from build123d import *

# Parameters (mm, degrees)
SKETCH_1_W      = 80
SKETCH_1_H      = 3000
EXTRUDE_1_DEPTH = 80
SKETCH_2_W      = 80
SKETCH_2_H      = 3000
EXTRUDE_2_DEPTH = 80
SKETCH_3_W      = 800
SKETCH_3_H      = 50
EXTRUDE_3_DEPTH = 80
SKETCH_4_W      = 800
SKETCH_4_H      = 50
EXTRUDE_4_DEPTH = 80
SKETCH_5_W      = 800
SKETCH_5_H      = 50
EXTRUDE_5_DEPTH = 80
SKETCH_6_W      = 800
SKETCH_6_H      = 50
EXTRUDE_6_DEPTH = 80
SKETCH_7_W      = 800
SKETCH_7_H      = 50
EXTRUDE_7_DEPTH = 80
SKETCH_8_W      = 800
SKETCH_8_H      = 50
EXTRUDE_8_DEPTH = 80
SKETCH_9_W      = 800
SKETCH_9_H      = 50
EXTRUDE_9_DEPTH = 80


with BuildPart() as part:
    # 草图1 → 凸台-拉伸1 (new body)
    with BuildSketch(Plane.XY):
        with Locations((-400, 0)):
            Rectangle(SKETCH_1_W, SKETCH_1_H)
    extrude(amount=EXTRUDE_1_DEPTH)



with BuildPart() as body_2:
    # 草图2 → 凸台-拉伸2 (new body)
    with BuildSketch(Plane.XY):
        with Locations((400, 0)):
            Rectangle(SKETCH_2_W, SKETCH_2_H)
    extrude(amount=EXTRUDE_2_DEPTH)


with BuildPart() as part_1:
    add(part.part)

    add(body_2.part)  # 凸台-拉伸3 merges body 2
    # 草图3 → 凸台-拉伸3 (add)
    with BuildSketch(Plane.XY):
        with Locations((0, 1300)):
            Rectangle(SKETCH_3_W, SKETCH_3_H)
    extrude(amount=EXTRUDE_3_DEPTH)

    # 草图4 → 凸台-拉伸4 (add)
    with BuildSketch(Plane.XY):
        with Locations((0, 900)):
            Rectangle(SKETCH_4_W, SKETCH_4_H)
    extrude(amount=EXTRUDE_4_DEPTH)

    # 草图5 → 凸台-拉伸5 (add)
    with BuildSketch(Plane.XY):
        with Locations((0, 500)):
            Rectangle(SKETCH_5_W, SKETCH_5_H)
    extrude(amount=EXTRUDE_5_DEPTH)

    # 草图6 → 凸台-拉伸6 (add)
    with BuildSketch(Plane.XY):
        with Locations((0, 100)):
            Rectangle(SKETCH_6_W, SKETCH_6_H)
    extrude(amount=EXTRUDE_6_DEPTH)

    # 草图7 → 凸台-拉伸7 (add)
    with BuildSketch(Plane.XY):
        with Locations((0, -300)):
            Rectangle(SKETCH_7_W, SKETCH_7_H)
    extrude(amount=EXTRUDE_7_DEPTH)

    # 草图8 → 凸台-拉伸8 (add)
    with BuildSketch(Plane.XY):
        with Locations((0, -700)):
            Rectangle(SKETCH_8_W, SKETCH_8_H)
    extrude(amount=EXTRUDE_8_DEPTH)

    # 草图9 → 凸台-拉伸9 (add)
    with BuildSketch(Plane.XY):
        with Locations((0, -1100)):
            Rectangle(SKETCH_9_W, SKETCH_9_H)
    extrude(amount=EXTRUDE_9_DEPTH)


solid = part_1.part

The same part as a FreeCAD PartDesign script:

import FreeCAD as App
import Part
import Sketcher


def add_polygon(sketch, points):
    """Adds a closed chain of lines whose ends are joined by coincident constraints."""
    first, n = sketch.GeometryCount, len(points)
    for a, b in zip(points, points[1:] + points[:1]):
        sketch.addGeometry(Part.LineSegment(App.Vector(*a, 0), App.Vector(*b, 0)), False)
    for i in range(n):
        sketch.addConstraint(Sketcher.Constraint("Coincident", first + i, 2, first + (i + 1) % n, 1))

doc = App.newDocument("Part")
body = doc.addObject("PartDesign::Body", "Body")

sketch1 = body.newObject("Sketcher::SketchObject", "Sketch")
sketch1.AttachmentSupport = (doc.getObject("XY_Plane"), [""])
sketch1.MapMode = "FlatFace"
add_polygon(sketch1, [(-440, 1500), (-440, -1500), (-360, -1500), (-360, 1500)])
sketch1.addConstraint(Sketcher.Constraint("Vertical", 0))
sketch1.addConstraint(Sketcher.Constraint("Horizontal", 1))
sketch1.addConstraint(Sketcher.Constraint("Vertical", 2))
sketch1.addConstraint(Sketcher.Constraint("Horizontal", 3))
sketch1.addConstraint(Sketcher.Constraint("DistanceX", 1, 1, 1, 2, 80.0))
sketch1.addConstraint(Sketcher.Constraint("DistanceY", 0, 2, 0, 1, 3000.0))
sketch1.addConstraint(Sketcher.Constraint("DistanceX", 0, 2, -1, 1, 440.0))
sketch1.addConstraint(Sketcher.Constraint("DistanceY", 0, 2, -1, 1, 1500.0))
pad1 = body.newObject("PartDesign::Pad", "Pad")
pad1.Profile = sketch1
pad1.Length = 80
body2 = doc.addObject("PartDesign::Body", "Body001")

sketch2 = body2.newObject("Sketcher::SketchObject", "Sketch001")
sketch2.AttachmentSupport = (doc.getObject("XY_Plane001"), [""])
sketch2.MapMode = "FlatFace"
add_polygon(sketch2, [(360, 1500), (360, -1500), (440, -1500), (440, 1500)])
sketch2.addConstraint(Sketcher.Constraint("Vertical", 0))
sketch2.addConstraint(Sketcher.Constraint("Horizontal", 1))
sketch2.addConstraint(Sketcher.Constraint("Vertical", 2))
sketch2.addConstraint(Sketcher.Constraint("Horizontal", 3))
sketch2.addConstraint(Sketcher.Constraint("DistanceX", 1, 1, 1, 2, 80.0))
sketch2.addConstraint(Sketcher.Constraint("DistanceY", 0, 2, 0, 1, 3000.0))
sketch2.addConstraint(Sketcher.Constraint("DistanceX", -1, 1, 0, 2, 360.0))
sketch2.addConstraint(Sketcher.Constraint("DistanceY", 0, 2, -1, 1, 1500.0))
pad2 = body2.newObject("PartDesign::Pad", "Pad001")
pad2.Profile = sketch2
pad2.Length = 80
body.AllowCompound = True
doc.recompute()

boolean = body.newObject("PartDesign::Boolean", "Boolean")
boolean.Type = "Fuse"
boolean.addObjects([body2])

sketch3 = body.newObject("Sketcher::SketchObject", "Sketch002")
sketch3.AttachmentSupport = (doc.getObject("XY_Plane"), [""])
sketch3.MapMode = "FlatFace"
add_polygon(sketch3, [(-400, 1325), (-400, 1275), (400, 1275), (400, 1325)])
sketch3.addConstraint(Sketcher.Constraint("Vertical", 0))
sketch3.addConstraint(Sketcher.Constraint("Horizontal", 1))
sketch3.addConstraint(Sketcher.Constraint("Vertical", 2))
sketch3.addConstraint(Sketcher.Constraint("Horizontal", 3))
sketch3.addConstraint(Sketcher.Constraint("DistanceX", 1, 1, 1, 2, 800.0))
sketch3.addConstraint(Sketcher.Constraint("DistanceY", 0, 2, 0, 1, 50.0))
sketch3.addConstraint(Sketcher.Constraint("DistanceX", 0, 2, -1, 1, 400.0))
sketch3.addConstraint(Sketcher.Constraint("DistanceY", -1, 1, 0, 2, 1275.0))
pad3 = body.newObject("PartDesign::Pad", "Pad002")
pad3.Profile = sketch3
pad3.Length = 80

sketch4 = body.newObject("Sketcher::SketchObject", "Sketch003")
sketch4.AttachmentSupport = (doc.getObject("XY_Plane"), [""])
sketch4.MapMode = "FlatFace"
add_polygon(sketch4, [(-400, 925), (-400, 875), (400, 875), (400, 925)])
sketch4.addConstraint(Sketcher.Constraint("Vertical", 0))
sketch4.addConstraint(Sketcher.Constraint("Horizontal", 1))
sketch4.addConstraint(Sketcher.Constraint("Vertical", 2))
sketch4.addConstraint(Sketcher.Constraint("Horizontal", 3))
sketch4.addConstraint(Sketcher.Constraint("DistanceX", 1, 1, 1, 2, 800.0))
sketch4.addConstraint(Sketcher.Constraint("DistanceY", 0, 2, 0, 1, 50.0))
sketch4.addConstraint(Sketcher.Constraint("DistanceX", 0, 2, -1, 1, 400.0))
sketch4.addConstraint(Sketcher.Constraint("DistanceY", -1, 1, 0, 2, 875.0))
pad4 = body.newObject("PartDesign::Pad", "Pad003")
pad4.Profile = sketch4
pad4.Length = 80

sketch5 = body.newObject("Sketcher::SketchObject", "Sketch004")
sketch5.AttachmentSupport = (doc.getObject("XY_Plane"), [""])
sketch5.MapMode = "FlatFace"
add_polygon(sketch5, [(-400, 525), (-400, 475), (400, 475), (400, 525)])
sketch5.addConstraint(Sketcher.Constraint("Vertical", 0))
sketch5.addConstraint(Sketcher.Constraint("Horizontal", 1))
sketch5.addConstraint(Sketcher.Constraint("Vertical", 2))
sketch5.addConstraint(Sketcher.Constraint("Horizontal", 3))
sketch5.addConstraint(Sketcher.Constraint("DistanceX", 1, 1, 1, 2, 800.0))
sketch5.addConstraint(Sketcher.Constraint("DistanceY", 0, 2, 0, 1, 50.0))
sketch5.addConstraint(Sketcher.Constraint("DistanceX", 0, 2, -1, 1, 400.0))
sketch5.addConstraint(Sketcher.Constraint("DistanceY", -1, 1, 0, 2, 475.0))
pad5 = body.newObject("PartDesign::Pad", "Pad004")
pad5.Profile = sketch5
pad5.Length = 80

sketch6 = body.newObject("Sketcher::SketchObject", "Sketch005")
sketch6.AttachmentSupport = (doc.getObject("XY_Plane"), [""])
sketch6.MapMode = "FlatFace"
add_polygon(sketch6, [(-400, 125), (-400, 75), (400, 75), (400, 125)])
sketch6.addConstraint(Sketcher.Constraint("Vertical", 0))
sketch6.addConstraint(Sketcher.Constraint("Horizontal", 1))
sketch6.addConstraint(Sketcher.Constraint("Vertical", 2))
sketch6.addConstraint(Sketcher.Constraint("Horizontal", 3))
sketch6.addConstraint(Sketcher.Constraint("DistanceX", 1, 1, 1, 2, 800.0))
sketch6.addConstraint(Sketcher.Constraint("DistanceY", 0, 2, 0, 1, 50.0))
sketch6.addConstraint(Sketcher.Constraint("DistanceX", 0, 2, -1, 1, 400.0))
sketch6.addConstraint(Sketcher.Constraint("DistanceY", -1, 1, 0, 2, 75.0))
pad6 = body.newObject("PartDesign::Pad", "Pad005")
pad6.Profile = sketch6
pad6.Length = 80

sketch7 = body.newObject("Sketcher::SketchObject", "Sketch006")
sketch7.AttachmentSupport = (doc.getObject("XY_Plane"), [""])
sketch7.MapMode = "FlatFace"
add_polygon(sketch7, [(-400, -275), (-400, -325), (400, -325), (400, -275)])
sketch7.addConstraint(Sketcher.Constraint("Vertical", 0))
sketch7.addConstraint(Sketcher.Constraint("Horizontal", 1))
sketch7.addConstraint(Sketcher.Constraint("Vertical", 2))
sketch7.addConstraint(Sketcher.Constraint("Horizontal", 3))
sketch7.addConstraint(Sketcher.Constraint("DistanceX", 1, 1, 1, 2, 800.0))
sketch7.addConstraint(Sketcher.Constraint("DistanceY", 0, 2, 0, 1, 50.0))
sketch7.addConstraint(Sketcher.Constraint("DistanceX", 0, 2, -1, 1, 400.0))
sketch7.addConstraint(Sketcher.Constraint("DistanceY", 0, 2, -1, 1, 325.0))
pad7 = body.newObject("PartDesign::Pad", "Pad006")
pad7.Profile = sketch7
pad7.Length = 80

sketch8 = body.newObject("Sketcher::SketchObject", "Sketch007")
sketch8.AttachmentSupport = (doc.getObject("XY_Plane"), [""])
sketch8.MapMode = "FlatFace"
add_polygon(sketch8, [(-400, -675), (-400, -725), (400, -725), (400, -675)])
sketch8.addConstraint(Sketcher.Constraint("Vertical", 0))
sketch8.addConstraint(Sketcher.Constraint("Horizontal", 1))
sketch8.addConstraint(Sketcher.Constraint("Vertical", 2))
sketch8.addConstraint(Sketcher.Constraint("Horizontal", 3))
sketch8.addConstraint(Sketcher.Constraint("DistanceX", 1, 1, 1, 2, 800.0))
sketch8.addConstraint(Sketcher.Constraint("DistanceY", 0, 2, 0, 1, 50.0))
sketch8.addConstraint(Sketcher.Constraint("DistanceX", 0, 2, -1, 1, 400.0))
sketch8.addConstraint(Sketcher.Constraint("DistanceY", 0, 2, -1, 1, 725.0))
pad8 = body.newObject("PartDesign::Pad", "Pad007")
pad8.Profile = sketch8
pad8.Length = 80

sketch9 = body.newObject("Sketcher::SketchObject", "Sketch008")
sketch9.AttachmentSupport = (doc.getObject("XY_Plane"), [""])
sketch9.MapMode = "FlatFace"
add_polygon(sketch9, [(-400, -1075), (-400, -1125), (400, -1125), (400, -1075)])
sketch9.addConstraint(Sketcher.Constraint("Vertical", 0))
sketch9.addConstraint(Sketcher.Constraint("Horizontal", 1))
sketch9.addConstraint(Sketcher.Constraint("Vertical", 2))
sketch9.addConstraint(Sketcher.Constraint("Horizontal", 3))
sketch9.addConstraint(Sketcher.Constraint("DistanceX", 1, 1, 1, 2, 800.0))
sketch9.addConstraint(Sketcher.Constraint("DistanceY", 0, 2, 0, 1, 50.0))
sketch9.addConstraint(Sketcher.Constraint("DistanceX", 0, 2, -1, 1, 400.0))
sketch9.addConstraint(Sketcher.Constraint("DistanceY", 0, 2, -1, 1, 1125.0))
pad9 = body.newObject("PartDesign::Pad", "Pad008")
pad9.Profile = sketch9
pad9.Length = 80

doc.recompute()
